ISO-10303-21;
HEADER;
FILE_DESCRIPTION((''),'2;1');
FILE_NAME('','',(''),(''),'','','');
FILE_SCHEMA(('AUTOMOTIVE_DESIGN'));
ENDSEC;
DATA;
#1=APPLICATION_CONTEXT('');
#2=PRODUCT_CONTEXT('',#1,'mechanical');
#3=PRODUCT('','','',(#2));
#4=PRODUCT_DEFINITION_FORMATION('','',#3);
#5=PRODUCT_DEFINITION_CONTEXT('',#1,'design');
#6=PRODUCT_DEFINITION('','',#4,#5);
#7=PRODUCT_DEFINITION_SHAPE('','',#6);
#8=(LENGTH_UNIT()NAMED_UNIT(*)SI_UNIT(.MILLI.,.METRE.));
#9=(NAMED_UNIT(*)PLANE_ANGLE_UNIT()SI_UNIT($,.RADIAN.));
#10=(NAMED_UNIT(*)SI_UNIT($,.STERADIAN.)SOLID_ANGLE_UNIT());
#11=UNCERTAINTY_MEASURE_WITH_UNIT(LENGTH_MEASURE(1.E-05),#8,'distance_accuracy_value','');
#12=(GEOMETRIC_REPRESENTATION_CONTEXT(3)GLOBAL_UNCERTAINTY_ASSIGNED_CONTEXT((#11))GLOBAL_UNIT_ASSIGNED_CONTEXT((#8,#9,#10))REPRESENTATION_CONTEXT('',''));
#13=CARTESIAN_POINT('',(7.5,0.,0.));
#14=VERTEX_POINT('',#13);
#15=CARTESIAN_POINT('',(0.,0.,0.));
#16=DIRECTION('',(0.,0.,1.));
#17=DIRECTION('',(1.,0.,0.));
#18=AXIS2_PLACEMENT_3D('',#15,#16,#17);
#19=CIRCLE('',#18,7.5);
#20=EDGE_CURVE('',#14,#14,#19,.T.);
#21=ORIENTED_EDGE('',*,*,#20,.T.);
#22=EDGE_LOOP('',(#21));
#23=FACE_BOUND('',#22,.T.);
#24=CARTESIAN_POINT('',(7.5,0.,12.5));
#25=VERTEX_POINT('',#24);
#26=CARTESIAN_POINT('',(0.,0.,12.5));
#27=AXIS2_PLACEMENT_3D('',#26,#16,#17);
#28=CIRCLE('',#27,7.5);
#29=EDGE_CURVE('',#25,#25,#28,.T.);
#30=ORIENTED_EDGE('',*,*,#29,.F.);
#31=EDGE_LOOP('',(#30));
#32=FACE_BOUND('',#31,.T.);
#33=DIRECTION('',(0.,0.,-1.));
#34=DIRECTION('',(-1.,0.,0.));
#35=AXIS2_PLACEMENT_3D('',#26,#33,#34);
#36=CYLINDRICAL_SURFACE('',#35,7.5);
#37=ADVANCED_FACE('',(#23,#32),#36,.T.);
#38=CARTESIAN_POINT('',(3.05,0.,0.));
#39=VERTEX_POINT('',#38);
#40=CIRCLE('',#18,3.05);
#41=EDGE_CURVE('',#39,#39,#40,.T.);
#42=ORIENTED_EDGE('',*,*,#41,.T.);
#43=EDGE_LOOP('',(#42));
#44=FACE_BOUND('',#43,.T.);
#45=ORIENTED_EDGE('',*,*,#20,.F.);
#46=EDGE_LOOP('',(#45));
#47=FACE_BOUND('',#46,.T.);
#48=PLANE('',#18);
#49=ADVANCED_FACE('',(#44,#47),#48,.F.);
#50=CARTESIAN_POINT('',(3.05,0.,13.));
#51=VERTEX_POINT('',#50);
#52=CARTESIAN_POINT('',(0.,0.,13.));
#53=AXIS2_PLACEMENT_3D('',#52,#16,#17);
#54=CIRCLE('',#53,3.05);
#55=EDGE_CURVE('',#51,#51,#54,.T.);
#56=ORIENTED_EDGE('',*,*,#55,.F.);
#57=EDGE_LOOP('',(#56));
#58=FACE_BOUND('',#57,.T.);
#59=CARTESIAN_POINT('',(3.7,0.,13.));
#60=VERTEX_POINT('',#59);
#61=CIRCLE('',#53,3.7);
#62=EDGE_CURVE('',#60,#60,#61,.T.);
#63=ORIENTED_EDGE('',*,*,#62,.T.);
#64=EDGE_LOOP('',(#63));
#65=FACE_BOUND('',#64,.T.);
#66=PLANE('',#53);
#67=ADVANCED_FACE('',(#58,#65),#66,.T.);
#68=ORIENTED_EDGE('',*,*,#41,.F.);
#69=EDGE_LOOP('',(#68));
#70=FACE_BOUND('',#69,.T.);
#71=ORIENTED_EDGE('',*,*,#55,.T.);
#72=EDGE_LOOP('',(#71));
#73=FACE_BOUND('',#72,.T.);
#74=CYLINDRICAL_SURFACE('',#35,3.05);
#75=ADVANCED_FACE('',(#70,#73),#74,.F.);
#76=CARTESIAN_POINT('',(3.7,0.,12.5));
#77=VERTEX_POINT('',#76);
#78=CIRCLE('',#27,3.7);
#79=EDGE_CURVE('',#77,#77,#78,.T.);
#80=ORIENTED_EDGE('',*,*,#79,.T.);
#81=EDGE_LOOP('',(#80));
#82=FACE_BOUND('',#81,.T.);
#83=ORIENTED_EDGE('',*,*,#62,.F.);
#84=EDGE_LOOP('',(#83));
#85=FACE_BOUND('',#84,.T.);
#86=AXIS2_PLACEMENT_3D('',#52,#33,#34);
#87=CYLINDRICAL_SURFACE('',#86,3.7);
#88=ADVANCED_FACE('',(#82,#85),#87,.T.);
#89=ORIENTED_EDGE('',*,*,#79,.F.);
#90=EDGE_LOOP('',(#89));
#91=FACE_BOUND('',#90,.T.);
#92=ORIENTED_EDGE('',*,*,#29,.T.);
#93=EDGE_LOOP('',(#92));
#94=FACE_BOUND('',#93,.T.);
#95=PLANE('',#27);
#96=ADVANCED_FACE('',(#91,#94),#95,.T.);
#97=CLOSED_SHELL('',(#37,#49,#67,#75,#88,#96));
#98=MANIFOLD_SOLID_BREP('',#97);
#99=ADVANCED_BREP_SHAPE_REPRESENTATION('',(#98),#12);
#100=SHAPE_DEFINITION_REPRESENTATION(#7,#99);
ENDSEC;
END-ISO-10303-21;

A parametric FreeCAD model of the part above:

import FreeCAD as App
import Part
import Sketcher

doc = App.newDocument("Part")
body = doc.addObject("PartDesign::Body", "Body")

# Sketch on XY plane
sketch1 = body.newObject("Sketcher::SketchObject", "Sketch")
sketch1.AttachmentSupport = (doc.getObject("XY_Plane"), [""])
sketch1.MapMode = "FlatFace"
sketch1.addGeometry([
    Part.Circle(App.Vector(0, 0, 0), App.Vector(0, 0, 1), 7.5),
    Part.Circle(App.Vector(0, 0, 0), App.Vector(0, 0, 1), 3),
], False)
sketch1.addConstraint([
    Sketcher.Constraint("Coincident", 0, 3, -1, 1),
    Sketcher.Constraint("Coincident", 1, 3, -1, 1),
    Sketcher.Constraint("Diameter", 0, 15.0),
    Sketcher.Constraint("Diameter", 1, 6.1),
])
pad1 = body.newObject("PartDesign::Pad", "Pad")
pad1.Profile = sketch1
pad1.Length = 12.5

# Sketch on XY plane
sketch2 = body.newObject("Sketcher::SketchObject", "Sketch001")
sketch2.AttachmentSupport = (doc.getObject("XY_Plane"), [""])
sketch2.MapMode = "FlatFace"
sketch2.AttachmentOffset = App.Placement(App.Vector(0, 0, 12.5), App.Rotation())
sketch2.addGeometry([
    Part.Circle(App.Vector(0, 0, 0), App.Vector(0, 0, 1), 3.7),
    Part.Circle(App.Vector(0, 0, 0), App.Vector(0, 0, 1), 3),
], False)
sketch2.addConstraint([
    Sketcher.Constraint("Coincident", 0, 3, -1, 1),
    Sketcher.Constraint("Coincident", 1, 3, -1, 1),
    Sketcher.Constraint("Diameter", 0, 7.4),
    Sketcher.Constraint("Diameter", 1, 6.1),
])
pad2 = body.newObject("PartDesign::Pad", "Pad001")
pad2.Profile = sketch2
pad2.Length = 0.5

doc.recompute()
